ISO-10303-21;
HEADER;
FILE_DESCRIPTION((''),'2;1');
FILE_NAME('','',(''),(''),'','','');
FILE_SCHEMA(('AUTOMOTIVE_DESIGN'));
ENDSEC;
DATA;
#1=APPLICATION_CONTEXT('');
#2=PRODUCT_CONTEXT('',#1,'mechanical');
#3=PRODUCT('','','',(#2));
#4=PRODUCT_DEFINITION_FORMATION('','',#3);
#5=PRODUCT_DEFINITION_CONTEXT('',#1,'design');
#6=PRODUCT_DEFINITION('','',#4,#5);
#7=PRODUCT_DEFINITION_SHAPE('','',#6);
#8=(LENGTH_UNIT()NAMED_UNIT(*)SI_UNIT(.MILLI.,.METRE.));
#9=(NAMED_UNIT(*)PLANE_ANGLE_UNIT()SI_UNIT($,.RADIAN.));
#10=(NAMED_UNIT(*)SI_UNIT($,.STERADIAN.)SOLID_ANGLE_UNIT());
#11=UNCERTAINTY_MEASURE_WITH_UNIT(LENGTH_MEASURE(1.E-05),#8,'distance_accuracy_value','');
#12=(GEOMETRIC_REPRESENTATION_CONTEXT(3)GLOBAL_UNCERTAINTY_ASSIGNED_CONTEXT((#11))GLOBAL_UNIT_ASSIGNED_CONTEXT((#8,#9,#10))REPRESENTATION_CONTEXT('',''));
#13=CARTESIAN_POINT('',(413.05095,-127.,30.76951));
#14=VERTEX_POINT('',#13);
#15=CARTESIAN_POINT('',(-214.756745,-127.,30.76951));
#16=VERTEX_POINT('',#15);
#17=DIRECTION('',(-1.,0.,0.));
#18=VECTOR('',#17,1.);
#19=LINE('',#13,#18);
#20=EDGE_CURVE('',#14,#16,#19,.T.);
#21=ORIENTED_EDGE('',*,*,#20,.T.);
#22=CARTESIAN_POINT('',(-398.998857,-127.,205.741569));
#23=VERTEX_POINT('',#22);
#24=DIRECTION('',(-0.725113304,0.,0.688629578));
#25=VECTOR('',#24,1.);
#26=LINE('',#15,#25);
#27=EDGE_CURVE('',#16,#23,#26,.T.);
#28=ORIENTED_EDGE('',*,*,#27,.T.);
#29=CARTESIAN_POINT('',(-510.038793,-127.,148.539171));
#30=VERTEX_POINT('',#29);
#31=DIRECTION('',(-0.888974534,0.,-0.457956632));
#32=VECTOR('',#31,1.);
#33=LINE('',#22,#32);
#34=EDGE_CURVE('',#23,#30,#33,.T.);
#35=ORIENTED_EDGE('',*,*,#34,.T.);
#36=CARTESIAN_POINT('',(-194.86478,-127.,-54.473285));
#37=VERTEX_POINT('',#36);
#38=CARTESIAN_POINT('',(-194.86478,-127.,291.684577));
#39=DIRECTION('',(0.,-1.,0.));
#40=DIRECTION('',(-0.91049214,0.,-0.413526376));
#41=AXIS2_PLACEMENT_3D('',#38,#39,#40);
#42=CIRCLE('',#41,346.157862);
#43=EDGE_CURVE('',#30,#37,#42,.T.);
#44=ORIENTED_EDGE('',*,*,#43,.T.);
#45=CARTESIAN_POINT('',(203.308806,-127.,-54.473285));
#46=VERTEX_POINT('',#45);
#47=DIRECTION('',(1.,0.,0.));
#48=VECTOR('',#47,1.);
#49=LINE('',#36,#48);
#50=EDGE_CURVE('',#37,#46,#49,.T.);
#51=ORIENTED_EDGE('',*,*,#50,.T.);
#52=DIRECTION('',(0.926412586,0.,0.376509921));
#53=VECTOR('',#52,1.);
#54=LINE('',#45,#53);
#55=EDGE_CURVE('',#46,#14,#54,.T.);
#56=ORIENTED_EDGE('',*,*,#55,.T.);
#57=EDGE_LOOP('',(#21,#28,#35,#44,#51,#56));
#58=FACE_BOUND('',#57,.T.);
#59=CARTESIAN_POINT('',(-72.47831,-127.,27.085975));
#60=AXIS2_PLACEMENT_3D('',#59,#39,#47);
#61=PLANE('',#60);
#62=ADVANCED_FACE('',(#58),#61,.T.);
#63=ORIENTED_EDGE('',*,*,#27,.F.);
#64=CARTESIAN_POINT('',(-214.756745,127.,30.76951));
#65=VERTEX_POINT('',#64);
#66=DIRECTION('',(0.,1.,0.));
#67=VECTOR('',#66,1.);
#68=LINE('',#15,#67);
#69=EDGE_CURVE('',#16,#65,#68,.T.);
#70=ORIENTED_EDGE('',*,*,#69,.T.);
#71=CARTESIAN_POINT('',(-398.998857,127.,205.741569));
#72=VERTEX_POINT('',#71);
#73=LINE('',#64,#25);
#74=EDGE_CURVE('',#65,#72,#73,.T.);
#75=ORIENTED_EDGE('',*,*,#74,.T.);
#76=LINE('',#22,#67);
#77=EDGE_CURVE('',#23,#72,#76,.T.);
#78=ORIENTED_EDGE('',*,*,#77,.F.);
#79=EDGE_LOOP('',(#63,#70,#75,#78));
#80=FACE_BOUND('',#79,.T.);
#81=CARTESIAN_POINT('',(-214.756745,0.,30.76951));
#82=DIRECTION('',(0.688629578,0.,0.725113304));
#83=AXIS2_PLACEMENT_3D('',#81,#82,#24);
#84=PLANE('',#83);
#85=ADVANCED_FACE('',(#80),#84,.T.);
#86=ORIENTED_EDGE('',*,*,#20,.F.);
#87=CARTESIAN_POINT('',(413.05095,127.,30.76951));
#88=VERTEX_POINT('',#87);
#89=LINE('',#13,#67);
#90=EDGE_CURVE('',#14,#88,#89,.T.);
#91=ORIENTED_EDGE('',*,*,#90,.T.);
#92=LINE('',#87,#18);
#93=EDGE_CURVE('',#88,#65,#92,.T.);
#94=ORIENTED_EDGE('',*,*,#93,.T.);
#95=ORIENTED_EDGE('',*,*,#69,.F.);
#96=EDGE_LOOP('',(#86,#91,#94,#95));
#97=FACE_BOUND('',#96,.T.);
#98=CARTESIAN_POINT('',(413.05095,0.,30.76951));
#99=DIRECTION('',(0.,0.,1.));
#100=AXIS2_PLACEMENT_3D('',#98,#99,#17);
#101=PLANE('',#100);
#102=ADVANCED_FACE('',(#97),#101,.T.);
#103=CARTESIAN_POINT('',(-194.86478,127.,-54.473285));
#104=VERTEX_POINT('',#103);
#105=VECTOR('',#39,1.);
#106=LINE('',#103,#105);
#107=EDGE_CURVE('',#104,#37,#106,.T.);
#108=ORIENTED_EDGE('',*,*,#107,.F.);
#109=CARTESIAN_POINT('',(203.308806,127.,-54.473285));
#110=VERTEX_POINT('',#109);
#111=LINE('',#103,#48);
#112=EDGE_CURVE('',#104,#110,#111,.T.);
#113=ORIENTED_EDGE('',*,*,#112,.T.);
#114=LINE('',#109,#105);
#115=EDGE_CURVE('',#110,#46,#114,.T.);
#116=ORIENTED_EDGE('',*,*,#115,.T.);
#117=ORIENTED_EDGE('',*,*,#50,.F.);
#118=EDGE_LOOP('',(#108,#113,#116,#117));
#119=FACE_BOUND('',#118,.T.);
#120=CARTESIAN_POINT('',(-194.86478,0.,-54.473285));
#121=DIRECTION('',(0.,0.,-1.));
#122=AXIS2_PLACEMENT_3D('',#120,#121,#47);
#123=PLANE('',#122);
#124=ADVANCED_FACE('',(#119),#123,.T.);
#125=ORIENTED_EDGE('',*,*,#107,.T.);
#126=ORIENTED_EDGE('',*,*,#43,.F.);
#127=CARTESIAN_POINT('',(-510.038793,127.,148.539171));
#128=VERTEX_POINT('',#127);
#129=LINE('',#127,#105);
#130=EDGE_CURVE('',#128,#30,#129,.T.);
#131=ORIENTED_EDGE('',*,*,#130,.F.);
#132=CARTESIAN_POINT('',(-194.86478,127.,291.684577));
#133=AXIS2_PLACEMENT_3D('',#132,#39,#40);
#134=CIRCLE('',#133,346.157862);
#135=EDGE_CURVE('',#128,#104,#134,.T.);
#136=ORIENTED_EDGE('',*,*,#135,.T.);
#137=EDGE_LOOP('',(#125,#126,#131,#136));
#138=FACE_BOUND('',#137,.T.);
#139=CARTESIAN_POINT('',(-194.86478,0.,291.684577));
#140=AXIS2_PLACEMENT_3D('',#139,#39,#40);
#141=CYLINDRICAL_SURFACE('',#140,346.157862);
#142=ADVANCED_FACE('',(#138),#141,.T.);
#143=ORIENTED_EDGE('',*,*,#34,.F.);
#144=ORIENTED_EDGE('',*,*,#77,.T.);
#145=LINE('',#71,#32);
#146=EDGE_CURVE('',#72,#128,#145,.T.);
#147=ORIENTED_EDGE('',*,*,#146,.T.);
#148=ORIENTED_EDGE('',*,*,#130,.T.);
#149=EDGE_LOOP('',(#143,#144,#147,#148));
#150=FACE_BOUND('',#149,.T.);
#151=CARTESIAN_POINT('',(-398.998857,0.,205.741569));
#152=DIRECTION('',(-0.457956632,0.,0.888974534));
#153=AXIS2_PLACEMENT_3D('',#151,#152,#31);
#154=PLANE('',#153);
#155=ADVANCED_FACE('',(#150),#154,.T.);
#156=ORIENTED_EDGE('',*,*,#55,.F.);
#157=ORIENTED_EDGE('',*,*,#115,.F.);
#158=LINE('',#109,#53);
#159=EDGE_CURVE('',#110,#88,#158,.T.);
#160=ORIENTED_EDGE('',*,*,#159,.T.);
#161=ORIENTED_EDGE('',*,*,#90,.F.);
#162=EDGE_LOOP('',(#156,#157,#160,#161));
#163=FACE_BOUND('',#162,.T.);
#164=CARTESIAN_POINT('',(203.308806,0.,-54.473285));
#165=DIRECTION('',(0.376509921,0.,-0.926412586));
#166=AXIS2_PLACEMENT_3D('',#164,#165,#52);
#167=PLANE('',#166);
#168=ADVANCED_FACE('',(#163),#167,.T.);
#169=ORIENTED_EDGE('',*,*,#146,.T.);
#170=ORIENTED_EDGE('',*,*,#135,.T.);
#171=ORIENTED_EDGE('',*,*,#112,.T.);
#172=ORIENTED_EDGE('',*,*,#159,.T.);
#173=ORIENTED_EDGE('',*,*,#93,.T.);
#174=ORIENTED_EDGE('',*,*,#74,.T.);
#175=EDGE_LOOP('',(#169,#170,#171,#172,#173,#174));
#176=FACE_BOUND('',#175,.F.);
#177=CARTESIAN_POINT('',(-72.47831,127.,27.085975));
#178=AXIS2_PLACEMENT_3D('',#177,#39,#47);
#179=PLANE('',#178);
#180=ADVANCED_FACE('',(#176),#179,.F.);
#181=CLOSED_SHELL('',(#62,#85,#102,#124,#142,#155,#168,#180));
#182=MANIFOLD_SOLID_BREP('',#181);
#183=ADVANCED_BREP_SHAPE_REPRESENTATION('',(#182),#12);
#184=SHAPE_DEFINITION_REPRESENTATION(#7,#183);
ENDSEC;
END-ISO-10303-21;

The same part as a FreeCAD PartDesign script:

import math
import FreeCAD as App
import Part
import Sketcher
from FreeCAD import Vector
Q = App.Units.Quantity

doc = App.newDocument("Part")
body = doc.addObject("PartDesign::Body", "Body")

# Sketch on XZ plane
sketch1 = body.newObject("Sketcher::SketchObject", "Sketch")
sketch1.AttachmentSupport = (doc.getObject("XZ_Plane"), [""])
sketch1.MapMode = "FlatFace"
sketch1.addGeometry([
    Part.LineSegment(Vector(-398.998857, 205.741569, 0), Vector(-510.038793, 148.539171, 0)),  # 0
    Part.ArcOfCircle(Part.Circle(Vector(-194.86478, 291.684577, 0), Vector(0, 0, 1), 346.157862), math.radians(-155.57345), math.radians(-90)),  # 1
    Part.LineSegment(Vector(-194.86478, -54.473285, 0), Vector(203.308806, -54.473285, 0)),  # 2
    Part.LineSegment(Vector(203.308806, -54.473285, 0), Vector(413.05095, 30.76951, 0)),  # 3
    Part.LineSegment(Vector(413.05095, 30.76951, 0), Vector(-214.756745, 30.76951, 0)),  # 4
    Part.LineSegment(Vector(-214.756745, 30.76951, 0), Vector(-398.998857, 205.741569, 0)),  # 5
], False)
sketch1.addConstraint([
    Sketcher.Constraint("Coincident", 0, 2, 1, 1),
    Sketcher.Constraint("Tangent", 1, 2, 2, 1),
    Sketcher.Constraint("Coincident", 2, 2, 3, 1),
    Sketcher.Constraint("Coincident", 3, 2, 4, 1),
    Sketcher.Constraint("Coincident", 4, 2, 5, 1),
    Sketcher.Constraint("Coincident", 5, 2, 0, 1),
    Sketcher.Constraint("Horizontal", 2),
    Sketcher.Constraint("Horizontal", 4),
    Sketcher.Constraint("Radius", 1, Q("346.157862 mm")),
    Sketcher.Constraint("DistanceX", 5, 2, 2, 2, Q("23.7129001 in")),
    Sketcher.Constraint("DistanceX", 0, 2, 2, 2, Q("713.347599 mm")),
    Sketcher.Constraint("Distance", 3, Q("226.40252 mm")),
    Sketcher.Constraint("Distance", 5, Q("254.087342 mm")),
    Sketcher.Constraint("DistanceX", 2, 1, 2, 2, Q("398.173586 mm")),
    Sketcher.Constraint("DistanceX", 4, 2, 4, 1, Q("627.807695 mm")),
    Sketcher.Constraint("DistanceX", 1, 3, -1, 1, Q("194.86478 mm")),
    Sketcher.Constraint("DistanceY", -1, 1, 0, 2, Q("148.539171 mm")),
    Sketcher.Constraint("DistanceX", -1, 1, 3, 2, Q("413.05095 mm")),
])
pad1 = body.newObject("PartDesign::Pad", "Pad")
pad1.Profile = sketch1
pad1.Length = Q("10 in")
pad1.Midplane = True

doc.recompute()
